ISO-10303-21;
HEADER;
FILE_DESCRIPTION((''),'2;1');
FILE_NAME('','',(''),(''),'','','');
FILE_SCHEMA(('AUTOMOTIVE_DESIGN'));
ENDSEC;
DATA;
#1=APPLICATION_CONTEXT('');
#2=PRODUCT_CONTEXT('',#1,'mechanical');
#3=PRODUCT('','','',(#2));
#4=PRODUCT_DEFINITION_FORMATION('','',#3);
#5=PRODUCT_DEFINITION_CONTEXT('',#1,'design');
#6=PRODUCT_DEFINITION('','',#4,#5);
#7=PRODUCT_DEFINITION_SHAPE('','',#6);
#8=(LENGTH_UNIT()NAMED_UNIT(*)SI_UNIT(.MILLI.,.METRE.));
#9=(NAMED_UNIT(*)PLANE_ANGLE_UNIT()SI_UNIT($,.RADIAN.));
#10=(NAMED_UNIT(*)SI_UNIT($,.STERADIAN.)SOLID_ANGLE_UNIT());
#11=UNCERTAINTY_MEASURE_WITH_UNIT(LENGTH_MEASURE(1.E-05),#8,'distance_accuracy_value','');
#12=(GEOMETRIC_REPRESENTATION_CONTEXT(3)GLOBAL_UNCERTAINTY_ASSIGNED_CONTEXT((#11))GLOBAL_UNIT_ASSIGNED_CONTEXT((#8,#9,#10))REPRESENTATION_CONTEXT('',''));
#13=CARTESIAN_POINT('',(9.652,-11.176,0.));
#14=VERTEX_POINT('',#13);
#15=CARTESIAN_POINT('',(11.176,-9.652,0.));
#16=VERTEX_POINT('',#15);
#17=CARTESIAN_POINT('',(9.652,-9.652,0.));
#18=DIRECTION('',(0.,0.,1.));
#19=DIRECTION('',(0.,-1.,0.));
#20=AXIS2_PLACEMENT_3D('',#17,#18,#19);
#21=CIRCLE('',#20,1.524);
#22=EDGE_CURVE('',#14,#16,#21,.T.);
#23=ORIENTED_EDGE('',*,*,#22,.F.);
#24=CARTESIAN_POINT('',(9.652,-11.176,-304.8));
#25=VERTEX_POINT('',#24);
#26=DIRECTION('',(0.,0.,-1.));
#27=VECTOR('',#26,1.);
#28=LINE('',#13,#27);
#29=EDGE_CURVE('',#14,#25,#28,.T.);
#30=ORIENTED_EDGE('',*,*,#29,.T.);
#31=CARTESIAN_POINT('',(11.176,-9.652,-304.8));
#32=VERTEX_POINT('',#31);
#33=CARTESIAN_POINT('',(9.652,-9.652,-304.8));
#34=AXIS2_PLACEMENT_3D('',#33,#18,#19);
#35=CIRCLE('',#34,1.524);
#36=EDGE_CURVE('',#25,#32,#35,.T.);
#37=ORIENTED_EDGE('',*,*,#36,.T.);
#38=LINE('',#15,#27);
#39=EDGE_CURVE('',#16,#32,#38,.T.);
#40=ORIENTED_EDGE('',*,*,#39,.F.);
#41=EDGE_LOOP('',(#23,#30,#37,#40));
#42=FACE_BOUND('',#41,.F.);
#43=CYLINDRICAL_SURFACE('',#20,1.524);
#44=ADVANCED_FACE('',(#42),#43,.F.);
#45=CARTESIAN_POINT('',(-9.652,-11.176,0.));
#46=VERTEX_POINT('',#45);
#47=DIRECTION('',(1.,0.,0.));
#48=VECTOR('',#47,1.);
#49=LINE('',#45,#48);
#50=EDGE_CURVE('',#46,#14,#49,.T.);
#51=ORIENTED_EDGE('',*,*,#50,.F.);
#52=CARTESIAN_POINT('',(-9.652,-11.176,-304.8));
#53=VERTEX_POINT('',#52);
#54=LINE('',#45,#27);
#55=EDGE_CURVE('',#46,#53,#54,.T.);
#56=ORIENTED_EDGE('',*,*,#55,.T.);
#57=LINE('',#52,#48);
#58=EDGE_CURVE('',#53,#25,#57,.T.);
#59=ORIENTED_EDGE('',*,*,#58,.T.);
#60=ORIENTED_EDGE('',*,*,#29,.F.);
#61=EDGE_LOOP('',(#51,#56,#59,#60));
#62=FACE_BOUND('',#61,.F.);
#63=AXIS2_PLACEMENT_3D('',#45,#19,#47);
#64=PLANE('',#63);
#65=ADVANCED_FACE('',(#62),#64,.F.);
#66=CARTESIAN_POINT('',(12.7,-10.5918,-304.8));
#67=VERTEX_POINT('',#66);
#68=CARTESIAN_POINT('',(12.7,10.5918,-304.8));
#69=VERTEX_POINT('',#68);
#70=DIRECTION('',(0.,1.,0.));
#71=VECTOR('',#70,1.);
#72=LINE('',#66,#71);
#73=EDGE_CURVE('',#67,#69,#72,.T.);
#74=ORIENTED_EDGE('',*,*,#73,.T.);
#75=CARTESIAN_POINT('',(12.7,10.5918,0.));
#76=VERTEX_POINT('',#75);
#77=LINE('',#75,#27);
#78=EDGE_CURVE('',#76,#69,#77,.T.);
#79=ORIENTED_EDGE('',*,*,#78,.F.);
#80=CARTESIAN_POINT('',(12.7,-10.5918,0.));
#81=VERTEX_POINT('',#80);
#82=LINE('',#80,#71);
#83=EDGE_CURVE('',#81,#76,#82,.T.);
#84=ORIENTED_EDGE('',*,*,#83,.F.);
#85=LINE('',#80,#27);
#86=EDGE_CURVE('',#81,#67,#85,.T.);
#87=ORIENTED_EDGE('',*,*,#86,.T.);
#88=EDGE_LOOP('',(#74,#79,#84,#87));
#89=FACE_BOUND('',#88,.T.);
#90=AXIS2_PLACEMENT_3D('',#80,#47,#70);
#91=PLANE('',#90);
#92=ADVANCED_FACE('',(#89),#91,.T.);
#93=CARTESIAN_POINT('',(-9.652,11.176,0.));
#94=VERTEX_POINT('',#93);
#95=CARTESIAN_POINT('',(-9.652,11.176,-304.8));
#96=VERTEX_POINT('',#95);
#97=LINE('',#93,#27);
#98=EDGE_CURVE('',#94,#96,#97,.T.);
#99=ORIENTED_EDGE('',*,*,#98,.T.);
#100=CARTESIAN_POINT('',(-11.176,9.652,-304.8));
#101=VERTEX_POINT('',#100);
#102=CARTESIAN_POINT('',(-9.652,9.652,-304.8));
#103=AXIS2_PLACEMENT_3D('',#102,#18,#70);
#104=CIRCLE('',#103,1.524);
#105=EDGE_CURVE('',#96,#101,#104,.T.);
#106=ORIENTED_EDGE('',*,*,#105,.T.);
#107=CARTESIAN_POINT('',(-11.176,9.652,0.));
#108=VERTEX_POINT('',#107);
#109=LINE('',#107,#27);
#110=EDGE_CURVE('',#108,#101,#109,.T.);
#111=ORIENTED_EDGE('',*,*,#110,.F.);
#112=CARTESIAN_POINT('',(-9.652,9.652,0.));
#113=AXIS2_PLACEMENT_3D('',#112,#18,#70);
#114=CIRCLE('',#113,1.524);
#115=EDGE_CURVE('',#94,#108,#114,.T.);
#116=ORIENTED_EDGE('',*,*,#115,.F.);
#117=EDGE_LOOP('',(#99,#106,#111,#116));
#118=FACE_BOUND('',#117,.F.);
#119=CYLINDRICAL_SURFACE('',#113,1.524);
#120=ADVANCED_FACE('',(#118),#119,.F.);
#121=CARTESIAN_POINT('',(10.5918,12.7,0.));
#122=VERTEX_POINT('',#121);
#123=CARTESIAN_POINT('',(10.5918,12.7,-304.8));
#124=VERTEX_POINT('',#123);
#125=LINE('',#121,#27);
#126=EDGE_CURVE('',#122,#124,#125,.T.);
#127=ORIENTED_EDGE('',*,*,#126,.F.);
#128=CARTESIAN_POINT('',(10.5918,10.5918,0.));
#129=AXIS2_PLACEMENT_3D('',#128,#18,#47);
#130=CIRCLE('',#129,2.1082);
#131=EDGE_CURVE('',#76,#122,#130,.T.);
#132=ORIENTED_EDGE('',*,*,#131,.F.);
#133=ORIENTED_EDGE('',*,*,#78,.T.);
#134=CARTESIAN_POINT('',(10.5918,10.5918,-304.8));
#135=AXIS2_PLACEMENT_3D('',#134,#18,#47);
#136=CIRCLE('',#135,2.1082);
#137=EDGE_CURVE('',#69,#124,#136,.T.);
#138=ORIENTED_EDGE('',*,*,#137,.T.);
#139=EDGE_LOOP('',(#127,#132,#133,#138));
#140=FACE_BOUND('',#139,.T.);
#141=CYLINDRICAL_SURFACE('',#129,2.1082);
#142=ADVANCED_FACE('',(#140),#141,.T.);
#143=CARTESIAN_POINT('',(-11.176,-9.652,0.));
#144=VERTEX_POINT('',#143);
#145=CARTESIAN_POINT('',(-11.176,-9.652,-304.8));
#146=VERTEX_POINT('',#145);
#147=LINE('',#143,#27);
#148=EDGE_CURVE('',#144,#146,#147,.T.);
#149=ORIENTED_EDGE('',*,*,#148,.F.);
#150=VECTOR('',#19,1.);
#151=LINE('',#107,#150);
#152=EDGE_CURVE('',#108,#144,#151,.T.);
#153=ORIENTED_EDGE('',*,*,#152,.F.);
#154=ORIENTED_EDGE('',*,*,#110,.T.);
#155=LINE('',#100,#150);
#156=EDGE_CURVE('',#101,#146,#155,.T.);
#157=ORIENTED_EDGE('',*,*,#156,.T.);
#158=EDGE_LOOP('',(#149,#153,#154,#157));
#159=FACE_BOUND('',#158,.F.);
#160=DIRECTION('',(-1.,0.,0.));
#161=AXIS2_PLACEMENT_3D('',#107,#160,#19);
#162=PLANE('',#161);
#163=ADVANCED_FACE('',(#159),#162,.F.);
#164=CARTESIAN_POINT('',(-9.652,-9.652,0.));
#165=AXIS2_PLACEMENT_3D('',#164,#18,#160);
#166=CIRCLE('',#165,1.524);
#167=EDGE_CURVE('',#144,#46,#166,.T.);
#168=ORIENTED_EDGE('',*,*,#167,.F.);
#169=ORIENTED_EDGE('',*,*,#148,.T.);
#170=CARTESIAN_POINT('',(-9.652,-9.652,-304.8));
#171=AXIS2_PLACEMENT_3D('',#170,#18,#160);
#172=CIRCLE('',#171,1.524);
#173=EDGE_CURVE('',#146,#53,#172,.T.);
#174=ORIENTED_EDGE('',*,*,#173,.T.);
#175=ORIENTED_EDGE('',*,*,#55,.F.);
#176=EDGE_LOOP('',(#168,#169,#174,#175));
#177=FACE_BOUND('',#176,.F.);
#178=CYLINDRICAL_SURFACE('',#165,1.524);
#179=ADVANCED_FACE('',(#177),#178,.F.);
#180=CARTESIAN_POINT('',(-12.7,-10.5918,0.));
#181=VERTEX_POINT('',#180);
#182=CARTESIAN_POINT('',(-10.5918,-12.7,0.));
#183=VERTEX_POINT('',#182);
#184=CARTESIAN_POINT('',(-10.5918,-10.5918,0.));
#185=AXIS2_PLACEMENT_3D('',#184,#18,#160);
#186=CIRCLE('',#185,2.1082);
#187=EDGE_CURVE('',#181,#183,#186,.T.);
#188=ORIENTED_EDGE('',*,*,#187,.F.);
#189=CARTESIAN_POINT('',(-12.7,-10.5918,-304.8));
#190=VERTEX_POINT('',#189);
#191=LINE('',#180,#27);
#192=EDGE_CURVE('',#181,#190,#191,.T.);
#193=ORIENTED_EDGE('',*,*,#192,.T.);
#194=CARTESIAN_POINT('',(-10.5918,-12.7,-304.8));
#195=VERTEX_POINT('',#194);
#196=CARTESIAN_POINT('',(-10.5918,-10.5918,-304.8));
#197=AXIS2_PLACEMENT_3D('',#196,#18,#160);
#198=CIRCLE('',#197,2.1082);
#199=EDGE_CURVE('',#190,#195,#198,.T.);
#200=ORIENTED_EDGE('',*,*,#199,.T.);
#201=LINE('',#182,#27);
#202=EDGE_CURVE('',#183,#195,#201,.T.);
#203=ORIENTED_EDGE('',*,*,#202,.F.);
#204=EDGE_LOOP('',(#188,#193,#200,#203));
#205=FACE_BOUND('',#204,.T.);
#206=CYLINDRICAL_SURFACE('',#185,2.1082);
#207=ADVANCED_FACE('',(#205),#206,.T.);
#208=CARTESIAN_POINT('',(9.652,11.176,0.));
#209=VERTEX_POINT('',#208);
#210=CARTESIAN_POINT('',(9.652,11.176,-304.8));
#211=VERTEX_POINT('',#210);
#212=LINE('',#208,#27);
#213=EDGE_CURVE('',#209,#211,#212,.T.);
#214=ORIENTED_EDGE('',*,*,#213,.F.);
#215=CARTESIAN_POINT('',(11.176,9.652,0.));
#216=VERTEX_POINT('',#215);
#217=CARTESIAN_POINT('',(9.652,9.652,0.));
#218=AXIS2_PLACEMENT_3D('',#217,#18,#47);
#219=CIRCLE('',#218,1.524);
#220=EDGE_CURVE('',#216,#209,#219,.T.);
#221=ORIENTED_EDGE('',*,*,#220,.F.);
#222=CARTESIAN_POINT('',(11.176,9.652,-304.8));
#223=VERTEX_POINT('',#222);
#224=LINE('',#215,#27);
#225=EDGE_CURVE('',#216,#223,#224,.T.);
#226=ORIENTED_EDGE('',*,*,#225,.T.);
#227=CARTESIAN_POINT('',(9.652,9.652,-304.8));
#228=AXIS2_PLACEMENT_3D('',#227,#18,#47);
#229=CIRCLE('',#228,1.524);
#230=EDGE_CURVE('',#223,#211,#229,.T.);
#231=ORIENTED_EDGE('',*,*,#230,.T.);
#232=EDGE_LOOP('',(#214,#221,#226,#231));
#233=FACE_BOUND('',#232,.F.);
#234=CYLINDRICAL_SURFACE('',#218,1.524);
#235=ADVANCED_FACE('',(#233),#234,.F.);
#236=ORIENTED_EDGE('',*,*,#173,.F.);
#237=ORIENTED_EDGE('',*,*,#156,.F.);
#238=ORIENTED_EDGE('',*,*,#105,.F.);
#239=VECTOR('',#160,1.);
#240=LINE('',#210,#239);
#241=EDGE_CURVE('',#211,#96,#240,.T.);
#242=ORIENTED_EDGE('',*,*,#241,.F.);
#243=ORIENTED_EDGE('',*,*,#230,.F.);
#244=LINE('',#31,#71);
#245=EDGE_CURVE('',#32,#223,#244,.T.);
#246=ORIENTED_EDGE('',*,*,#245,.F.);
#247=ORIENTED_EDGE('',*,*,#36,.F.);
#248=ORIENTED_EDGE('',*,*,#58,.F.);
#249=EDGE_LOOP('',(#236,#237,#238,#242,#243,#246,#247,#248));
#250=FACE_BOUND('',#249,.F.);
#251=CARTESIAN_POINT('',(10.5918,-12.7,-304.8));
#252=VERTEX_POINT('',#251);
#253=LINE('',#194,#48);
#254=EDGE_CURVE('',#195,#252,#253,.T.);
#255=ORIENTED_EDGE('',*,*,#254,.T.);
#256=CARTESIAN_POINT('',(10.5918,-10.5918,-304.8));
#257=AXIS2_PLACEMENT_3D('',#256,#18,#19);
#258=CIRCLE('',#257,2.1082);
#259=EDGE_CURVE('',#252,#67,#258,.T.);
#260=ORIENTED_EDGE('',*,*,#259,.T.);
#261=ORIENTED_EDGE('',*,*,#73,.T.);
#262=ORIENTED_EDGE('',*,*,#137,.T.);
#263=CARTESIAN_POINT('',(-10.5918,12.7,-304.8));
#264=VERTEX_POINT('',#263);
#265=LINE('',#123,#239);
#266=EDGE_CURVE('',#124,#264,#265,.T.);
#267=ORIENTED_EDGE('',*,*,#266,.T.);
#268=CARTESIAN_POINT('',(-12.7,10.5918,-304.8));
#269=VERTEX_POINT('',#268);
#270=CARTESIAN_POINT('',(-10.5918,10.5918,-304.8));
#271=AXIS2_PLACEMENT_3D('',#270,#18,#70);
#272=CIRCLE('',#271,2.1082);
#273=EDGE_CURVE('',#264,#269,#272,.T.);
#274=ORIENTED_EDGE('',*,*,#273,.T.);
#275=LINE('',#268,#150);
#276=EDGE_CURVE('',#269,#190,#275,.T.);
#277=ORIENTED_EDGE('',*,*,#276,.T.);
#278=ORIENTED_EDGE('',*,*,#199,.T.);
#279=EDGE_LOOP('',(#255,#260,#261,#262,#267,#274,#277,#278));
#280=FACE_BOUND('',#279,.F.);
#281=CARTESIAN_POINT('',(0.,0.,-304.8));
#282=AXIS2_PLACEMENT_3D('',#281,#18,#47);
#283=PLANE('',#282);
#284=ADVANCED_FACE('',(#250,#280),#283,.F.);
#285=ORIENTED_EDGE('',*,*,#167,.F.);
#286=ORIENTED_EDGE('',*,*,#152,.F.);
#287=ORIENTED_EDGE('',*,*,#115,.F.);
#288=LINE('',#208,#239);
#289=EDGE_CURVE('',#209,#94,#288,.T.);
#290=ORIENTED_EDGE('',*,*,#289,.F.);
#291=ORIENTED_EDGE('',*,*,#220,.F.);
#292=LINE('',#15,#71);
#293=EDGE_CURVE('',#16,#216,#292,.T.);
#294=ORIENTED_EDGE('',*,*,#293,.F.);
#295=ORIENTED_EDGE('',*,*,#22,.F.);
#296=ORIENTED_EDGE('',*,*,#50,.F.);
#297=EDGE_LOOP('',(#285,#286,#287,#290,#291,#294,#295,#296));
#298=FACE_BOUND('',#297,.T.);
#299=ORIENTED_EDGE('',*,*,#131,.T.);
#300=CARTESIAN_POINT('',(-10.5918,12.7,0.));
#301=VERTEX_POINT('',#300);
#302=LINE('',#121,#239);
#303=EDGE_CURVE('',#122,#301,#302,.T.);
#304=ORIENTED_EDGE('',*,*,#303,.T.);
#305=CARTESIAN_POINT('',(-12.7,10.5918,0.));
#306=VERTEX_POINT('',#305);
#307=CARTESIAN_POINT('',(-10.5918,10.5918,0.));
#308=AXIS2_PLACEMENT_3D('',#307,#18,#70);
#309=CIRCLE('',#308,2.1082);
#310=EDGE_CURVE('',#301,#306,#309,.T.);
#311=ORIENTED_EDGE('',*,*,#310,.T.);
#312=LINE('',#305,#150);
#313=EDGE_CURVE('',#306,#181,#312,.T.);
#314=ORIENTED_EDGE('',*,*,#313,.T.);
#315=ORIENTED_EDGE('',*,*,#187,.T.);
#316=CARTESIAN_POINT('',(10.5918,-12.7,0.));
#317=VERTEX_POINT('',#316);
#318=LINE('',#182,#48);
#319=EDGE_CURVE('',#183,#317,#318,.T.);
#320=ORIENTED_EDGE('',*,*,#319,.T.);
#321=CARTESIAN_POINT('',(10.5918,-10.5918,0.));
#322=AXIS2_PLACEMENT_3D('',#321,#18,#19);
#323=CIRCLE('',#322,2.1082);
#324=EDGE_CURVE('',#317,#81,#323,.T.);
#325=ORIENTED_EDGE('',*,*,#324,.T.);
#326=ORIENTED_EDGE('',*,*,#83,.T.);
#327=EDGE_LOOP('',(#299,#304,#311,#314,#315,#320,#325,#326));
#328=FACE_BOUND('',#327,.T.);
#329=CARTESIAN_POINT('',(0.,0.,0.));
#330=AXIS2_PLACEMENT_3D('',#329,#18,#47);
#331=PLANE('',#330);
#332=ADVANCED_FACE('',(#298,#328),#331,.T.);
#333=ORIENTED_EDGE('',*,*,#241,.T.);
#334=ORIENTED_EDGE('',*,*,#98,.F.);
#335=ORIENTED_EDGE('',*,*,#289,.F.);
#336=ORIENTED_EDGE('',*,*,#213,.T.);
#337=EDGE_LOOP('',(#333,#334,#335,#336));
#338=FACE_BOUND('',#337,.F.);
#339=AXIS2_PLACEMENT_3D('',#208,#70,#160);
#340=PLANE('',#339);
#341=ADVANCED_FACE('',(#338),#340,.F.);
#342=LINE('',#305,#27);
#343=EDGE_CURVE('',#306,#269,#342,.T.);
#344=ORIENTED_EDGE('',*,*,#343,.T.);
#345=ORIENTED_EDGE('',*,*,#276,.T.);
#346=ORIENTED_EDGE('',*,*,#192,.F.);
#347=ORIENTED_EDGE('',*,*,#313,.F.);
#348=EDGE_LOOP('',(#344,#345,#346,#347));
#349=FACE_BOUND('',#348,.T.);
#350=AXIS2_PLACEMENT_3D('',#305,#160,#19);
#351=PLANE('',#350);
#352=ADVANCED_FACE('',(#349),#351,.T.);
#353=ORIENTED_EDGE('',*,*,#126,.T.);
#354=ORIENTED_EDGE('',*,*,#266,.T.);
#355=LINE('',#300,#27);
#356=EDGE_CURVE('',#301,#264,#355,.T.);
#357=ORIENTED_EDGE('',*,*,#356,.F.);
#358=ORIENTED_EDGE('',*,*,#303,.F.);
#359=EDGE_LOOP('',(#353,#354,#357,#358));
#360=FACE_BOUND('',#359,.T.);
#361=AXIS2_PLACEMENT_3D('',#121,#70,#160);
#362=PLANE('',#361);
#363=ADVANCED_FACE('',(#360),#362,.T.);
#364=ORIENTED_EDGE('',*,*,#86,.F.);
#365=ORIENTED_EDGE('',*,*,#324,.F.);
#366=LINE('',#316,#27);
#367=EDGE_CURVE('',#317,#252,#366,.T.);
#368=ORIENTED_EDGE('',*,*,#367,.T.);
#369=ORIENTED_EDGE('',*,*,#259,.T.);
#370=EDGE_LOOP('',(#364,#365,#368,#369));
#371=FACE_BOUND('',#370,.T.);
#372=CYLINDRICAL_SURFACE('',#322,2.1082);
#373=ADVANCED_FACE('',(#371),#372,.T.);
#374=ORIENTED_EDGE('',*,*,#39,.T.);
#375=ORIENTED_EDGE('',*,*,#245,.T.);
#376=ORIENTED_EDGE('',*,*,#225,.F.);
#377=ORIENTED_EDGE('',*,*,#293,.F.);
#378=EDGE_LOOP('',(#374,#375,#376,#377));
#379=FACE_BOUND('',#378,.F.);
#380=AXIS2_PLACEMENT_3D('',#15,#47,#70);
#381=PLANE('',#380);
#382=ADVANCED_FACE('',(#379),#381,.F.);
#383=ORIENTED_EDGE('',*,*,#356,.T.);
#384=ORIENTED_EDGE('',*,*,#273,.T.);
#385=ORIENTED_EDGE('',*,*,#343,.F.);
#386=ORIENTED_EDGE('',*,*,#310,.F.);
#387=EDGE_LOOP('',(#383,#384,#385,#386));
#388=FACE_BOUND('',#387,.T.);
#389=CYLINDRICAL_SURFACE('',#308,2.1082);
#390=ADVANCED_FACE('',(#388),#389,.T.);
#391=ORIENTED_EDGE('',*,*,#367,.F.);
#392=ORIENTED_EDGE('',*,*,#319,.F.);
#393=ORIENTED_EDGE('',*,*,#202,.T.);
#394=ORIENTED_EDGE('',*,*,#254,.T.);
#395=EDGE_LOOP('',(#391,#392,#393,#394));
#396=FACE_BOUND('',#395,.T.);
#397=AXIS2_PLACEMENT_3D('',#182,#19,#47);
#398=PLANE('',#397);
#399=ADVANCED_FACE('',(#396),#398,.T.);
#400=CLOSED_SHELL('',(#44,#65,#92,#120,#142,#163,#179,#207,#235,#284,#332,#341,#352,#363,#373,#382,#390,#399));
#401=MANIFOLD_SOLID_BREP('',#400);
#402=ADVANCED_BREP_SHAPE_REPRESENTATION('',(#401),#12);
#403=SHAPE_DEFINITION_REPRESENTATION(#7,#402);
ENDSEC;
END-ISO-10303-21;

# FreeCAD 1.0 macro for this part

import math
import FreeCAD as App
import Part
import Sketcher

V = App.Vector
Q = App.Units.Quantity

doc = App.newDocument("Part")
body = doc.addObject("PartDesign::Body", "Body")

# Sketch on XY plane
sketch1 = doc.addObject("Sketcher::SketchObject", "Sketch")
body.addObject(sketch1)
sketch1.AttachmentSupport = (doc.XY_Plane, [""])
sketch1.MapMode = "FlatFace"
sketch1.addGeometry(Part.LineSegment(V(-12.7, 10.6, 0), V(-12.7, -10.6, 0)), False)
sketch1.addGeometry(Part.ArcOfCircle(Part.Circle(V(-10.6, -10.6, 0), V(0, 0, 1), 2.1), math.radians(180), math.radians(270)), False)
sketch1.addGeometry(Part.LineSegment(V(-10.6, -12.7, 0), V(10.6, -12.7, 0)), False)
sketch1.addGeometry(Part.ArcOfCircle(Part.Circle(V(10.6, -10.6, 0), V(0, 0, 1), 2.1), math.radians(-90), math.radians(0)), False)
sketch1.addGeometry(Part.LineSegment(V(12.7, -10.6, 0), V(12.7, 10.6, 0)), False)
sketch1.addGeometry(Part.ArcOfCircle(Part.Circle(V(10.6, 10.6, 0), V(0, 0, 1), 2.1), math.radians(0), math.radians(90)), False)
sketch1.addGeometry(Part.LineSegment(V(10.6, 12.7, 0), V(-10.6, 12.7, 0)), False)
sketch1.addGeometry(Part.ArcOfCircle(Part.Circle(V(-10.6, 10.6, 0), V(0, 0, 1), 2.1), math.radians(90), math.radians(180)), False)
sketch1.addGeometry(Part.ArcOfCircle(Part.Circle(V(9.7, 9.7, 0), V(0, 0, 1), 1.5), math.radians(0), math.radians(90)), False)
sketch1.addGeometry(Part.LineSegment(V(11.2, 9.7, 0), V(11.2, -9.7, 0)), False)
sketch1.addGeometry(Part.ArcOfCircle(Part.Circle(V(9.7, -9.7, 0), V(0, 0, 1), 1.5), math.radians(-90), math.radians(0)), False)
sketch1.addGeometry(Part.LineSegment(V(9.7, -11.2, 0), V(-9.7, -11.2, 0)), False)
sketch1.addGeometry(Part.ArcOfCircle(Part.Circle(V(-9.7, -9.7, 0), V(0, 0, 1), 1.5), math.radians(180), math.radians(270)), False)
sketch1.addGeometry(Part.LineSegment(V(-11.2, -9.7, 0), V(-11.2, 9.7, 0)), False)
sketch1.addGeometry(Part.ArcOfCircle(Part.Circle(V(-9.7, 9.7, 0), V(0, 0, 1), 1.5), math.radians(90), math.radians(180)), False)
sketch1.addGeometry(Part.LineSegment(V(-9.7, 11.2, 0), V(9.7, 11.2, 0)), False)
sketch1.addConstraint(Sketcher.Constraint("Tangent", 0, 2, 1, 1))
sketch1.addConstraint(Sketcher.Constraint("Tangent", 1, 2, 2, 1))
sketch1.addConstraint(Sketcher.Constraint("Tangent", 2, 2, 3, 1))
sketch1.addConstraint(Sketcher.Constraint("Tangent", 3, 2, 4, 1))
sketch1.addConstraint(Sketcher.Constraint("Tangent", 4, 2, 5, 1))
sketch1.addConstraint(Sketcher.Constraint("Tangent", 5, 2, 6, 1))
sketch1.addConstraint(Sketcher.Constraint("Tangent", 6, 2, 7, 1))
sketch1.addConstraint(Sketcher.Constraint("Tangent", 7, 2, 0, 1))
sketch1.addConstraint(Sketcher.Constraint("Tangent", 8, 1, 9, 1))
sketch1.addConstraint(Sketcher.Constraint("Tangent", 9, 2, 10, 2))
sketch1.addConstraint(Sketcher.Constraint("Tangent", 10, 1, 11, 1))
sketch1.addConstraint(Sketcher.Constraint("Tangent", 11, 2, 12, 2))
sketch1.addConstraint(Sketcher.Constraint("Tangent", 12, 1, 13, 1))
sketch1.addConstraint(Sketcher.Constraint("Tangent", 13, 2, 14, 2))
sketch1.addConstraint(Sketcher.Constraint("Tangent", 14, 1, 15, 1))
sketch1.addConstraint(Sketcher.Constraint("Tangent", 15, 2, 8, 2))
sketch1.addConstraint(Sketcher.Constraint("Vertical", 0))
sketch1.addConstraint(Sketcher.Constraint("Horizontal", 2))
sketch1.addConstraint(Sketcher.Constraint("Vertical", 4))
sketch1.addConstraint(Sketcher.Constraint("Horizontal", 6))
sketch1.addConstraint(Sketcher.Constraint("Vertical", 9))
sketch1.addConstraint(Sketcher.Constraint("Horizontal", 11))
sketch1.addConstraint(Sketcher.Constraint("Vertical", 13))
sketch1.addConstraint(Sketcher.Constraint("Horizontal", 15))
sketch1.addConstraint(Sketcher.Constraint("Equal", 1, 3))
sketch1.addConstraint(Sketcher.Constraint("Equal", 3, 5))
sketch1.addConstraint(Sketcher.Constraint("Equal", 5, 7))
sketch1.addConstraint(Sketcher.Constraint("Equal", 8, 10))
sketch1.addConstraint(Sketcher.Constraint("Equal", 10, 12))
sketch1.addConstraint(Sketcher.Constraint("Equal", 12, 14))
sketch1.addConstraint(Sketcher.Constraint("Symmetric", 1, 3, 5, 3, -1, 1))
sketch1.addConstraint(Sketcher.Constraint("Symmetric", 8, 3, 12, 3, -1, 1))
sketch1.addConstraint(Sketcher.Constraint("Equal", 6, 0))
sketch1.addConstraint(Sketcher.Constraint("Equal", 15, 9))
sketch1.addConstraint(Sketcher.Constraint("Radius", 8, Q("0.06 in")))
sketch1.addConstraint(Sketcher.Constraint("Radius", 1, Q("0.083 in")))
sketch1.addConstraint(Sketcher.Constraint("DistanceX", 11, 2, 11, 1, Q("0.76 in")))
sketch1.addConstraint(Sketcher.Constraint("DistanceX", 0, 2, -1, 1, Q("0.5 in")))
pad1 = doc.addObject("PartDesign::Pad", "Pad")
body.addObject(pad1)
pad1.Profile = sketch1
pad1.Length = Q("12 in")
pad1.Reversed = True

doc.recompute()
